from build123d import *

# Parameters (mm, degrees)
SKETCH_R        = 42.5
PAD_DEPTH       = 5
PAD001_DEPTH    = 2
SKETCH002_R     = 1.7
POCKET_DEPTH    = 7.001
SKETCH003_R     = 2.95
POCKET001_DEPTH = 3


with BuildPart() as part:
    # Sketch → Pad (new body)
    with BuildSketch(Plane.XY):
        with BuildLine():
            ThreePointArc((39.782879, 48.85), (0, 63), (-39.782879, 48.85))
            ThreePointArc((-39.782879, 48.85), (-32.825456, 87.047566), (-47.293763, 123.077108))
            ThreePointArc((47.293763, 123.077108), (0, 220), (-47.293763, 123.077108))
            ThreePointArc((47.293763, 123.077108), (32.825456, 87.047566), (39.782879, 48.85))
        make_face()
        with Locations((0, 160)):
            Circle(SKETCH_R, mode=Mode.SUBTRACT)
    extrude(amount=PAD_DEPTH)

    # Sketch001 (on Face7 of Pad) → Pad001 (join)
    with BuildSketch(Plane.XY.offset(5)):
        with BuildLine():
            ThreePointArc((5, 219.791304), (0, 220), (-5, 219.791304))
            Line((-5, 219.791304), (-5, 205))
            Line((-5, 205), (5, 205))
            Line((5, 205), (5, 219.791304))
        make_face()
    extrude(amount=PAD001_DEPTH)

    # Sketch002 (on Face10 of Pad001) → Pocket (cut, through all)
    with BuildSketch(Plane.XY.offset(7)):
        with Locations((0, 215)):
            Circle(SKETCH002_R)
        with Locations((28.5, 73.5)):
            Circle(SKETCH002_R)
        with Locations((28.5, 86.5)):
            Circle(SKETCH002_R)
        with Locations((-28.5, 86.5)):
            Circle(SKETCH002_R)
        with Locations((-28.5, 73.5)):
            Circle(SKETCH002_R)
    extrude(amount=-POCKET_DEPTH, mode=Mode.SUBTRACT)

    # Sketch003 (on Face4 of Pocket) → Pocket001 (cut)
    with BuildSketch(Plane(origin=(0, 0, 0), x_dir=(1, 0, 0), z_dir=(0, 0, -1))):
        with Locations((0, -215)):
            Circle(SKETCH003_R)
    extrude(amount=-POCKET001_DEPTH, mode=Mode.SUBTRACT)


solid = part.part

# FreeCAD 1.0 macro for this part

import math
import FreeCAD as App
import Part
import Sketcher

doc = App.newDocument("Part")
params = doc.addObject("Spreadsheet::Sheet", "Params")
for row, (alias, value) in enumerate([
    ("sketch1_diameter", "85 mm"),
    ("sketch1_radius", "62.999999 mm"),
    ("sketch1_radius2", "70.000001 mm"),
    ("sketch1_radius3", "60 mm"),
    ("pad1_length", "5 mm"),
    ("sketch2_width", "10 mm"),
    ("pad2_length", "2 mm"),
    ("sketch3_diameter", "3.4 mm"),
    ("sketch4_diameter", "5.9 mm"),
    ("pocket2_length", "3 mm"),
], start=1):
    params.set(f"A{row}", alias)
    params.set(f"B{row}", "=" + value)
    params.setAlias(f"B{row}", alias)

body = doc.addObject("PartDesign::Body", "Body")

# Sketch on XY plane
sketch1 = body.newObject("Sketcher::SketchObject", "Sketch")
sketch1.AttachmentSupport = (doc.getObject("XY_Plane"), [""])
sketch1.MapMode = "FlatFace"
sketch1.addGeometry(Part.ArcOfCircle(Part.Circle(App.Vector(0, 0, 0), App.Vector(0, 0, 1), 63), math.radians(51), math.radians(129)), False)
sketch1.addGeometry(Part.ArcOfCircle(Part.Circle(App.Vector(102, 80, 0), App.Vector(0, 0, 1), 70), math.radians(142), math.radians(206)), False)
sketch1.addGeometry(Part.ArcOfCircle(Part.Circle(App.Vector(0, 160, 0), App.Vector(0, 0, 1), 60), math.radians(-38), math.radians(218)), False)
sketch1.addGeometry(Part.ArcOfCircle(Part.Circle(App.Vector(-102, 80, 0), App.Vector(0, 0, 1), 70), math.radians(-26), math.radians(38)), False)
sketch1.addGeometry(Part.Circle(App.Vector(0, 160, 0), App.Vector(0, 0, 1), 42), False)
sketch1.addConstraint(Sketcher.Constraint("Coincident", 0, 1, 1, 2))
sketch1.addConstraint(Sketcher.Constraint("Tangent", 1, 1, 2, 1))
sketch1.addConstraint(Sketcher.Constraint("Tangent", 2, 2, 3, 2))
sketch1.addConstraint(Sketcher.Constraint("Coincident", 3, 1, 0, 2))
sketch1.addConstraint(Sketcher.Constraint("Coincident", 0, 3, -1, 1))
sketch1.addConstraint(Sketcher.Constraint("Coincident", 4, 3, 2, 3))
sketch1.addConstraint(Sketcher.Constraint("Equal", 1, 3))
sketch1.addConstraint(Sketcher.Constraint("Symmetric", 1, 3, 3, 3, -2))
sketch1.addConstraint(Sketcher.Constraint("Diameter", 4, 85.0))
sketch1.addConstraint(Sketcher.Constraint("Radius", 0, 62.999999))
sketch1.addConstraint(Sketcher.Constraint("Radius", 1, 70.000001))
sketch1.addConstraint(Sketcher.Constraint("Radius", 2, 60.0))
sketch1.addConstraint(Sketcher.Constraint("DistanceY", -1, 1, 2, 3, 160.0))
sketch1.addConstraint(Sketcher.Constraint("DistanceY", -1, 1, 0, 1, 48.85))
sketch1.setExpression("Constraints[8]", "Params.sketch1_diameter")
sketch1.setExpression("Constraints[9]", "Params.sketch1_radius")
sketch1.setExpression("Constraints[10]", "Params.sketch1_radius2")
sketch1.setExpression("Constraints[11]", "Params.sketch1_radius3")
pad1 = body.newObject("PartDesign::Pad", "Pad")
pad1.Profile = sketch1
pad1.setExpression("Length", "Params.pad1_length")

# Sketch on XY plane
sketch2 = body.newObject("Sketcher::SketchObject", "Sketch001")
sketch2.AttachmentSupport = (doc.getObject("XY_Plane"), [""])
sketch2.MapMode = "FlatFace"
sketch2.AttachmentOffset = App.Placement(App.Vector(0, 0, 5), App.Rotation())
sketch2.addGeometry(Part.ArcOfCircle(Part.Circle(App.Vector(0, 160, 0), App.Vector(0, 0, 1), 60), math.radians(85.22), math.radians(94.78)), False)
sketch2.addGeometry(Part.LineSegment(App.Vector(-5, 220, 0), App.Vector(-5, 205, 0)), False)
sketch2.addGeometry(Part.LineSegment(App.Vector(-5, 205, 0), App.Vector(5, 205, 0)), False)
sketch2.addGeometry(Part.LineSegment(App.Vector(5, 205, 0), App.Vector(5, 220, 0)), False)
sketch2.addConstraint(Sketcher.Constraint("Coincident", 0, 2, 1, 1))
sketch2.addConstraint(Sketcher.Constraint("Coincident", 1, 2, 2, 1))
sketch2.addConstraint(Sketcher.Constraint("Coincident", 2, 2, 3, 1))
sketch2.addConstraint(Sketcher.Constraint("Coincident", 3, 2, 0, 1))
sketch2.addConstraint(Sketcher.Constraint("Vertical", 1))
sketch2.addConstraint(Sketcher.Constraint("Horizontal", 2))
sketch2.addConstraint(Sketcher.Constraint("Vertical", 3))
sketch2.addConstraint(Sketcher.Constraint("Symmetric", 0, 2, 3, 2, -2))
sketch2.addConstraint(Sketcher.Constraint("DistanceX", 2, 1, 2, 2, 10.0))
sketch2.addConstraint(Sketcher.Constraint("DistanceY", -1, 1, 1, 2, 205.0))
sketch2.addConstraint(Sketcher.Constraint("Radius", 0, 60.000082))
sketch2.addConstraint(Sketcher.Constraint("DistanceY", 1, 2, 1, 1, 14.791304))
sketch2.setExpression("Constraints[8]", "Params.sketch2_width")
pad2 = body.newObject("PartDesign::Pad", "Pad001")
pad2.Profile = sketch2
pad2.setExpression("Length", "Params.pad2_length")

# Sketch on XY plane
sketch3 = body.newObject("Sketcher::SketchObject", "Sketch002")
sketch3.AttachmentSupport = (doc.getObject("XY_Plane"), [""])
sketch3.MapMode = "FlatFace"
sketch3.AttachmentOffset = App.Placement(App.Vector(0, 0, 7), App.Rotation())
sketch3.addGeometry(Part.Circle(App.Vector(0, 215, 0), App.Vector(0, 0, 1), 1.7), False)
sketch3.addGeometry(Part.Circle(App.Vector(28.5, 73.5, 0), App.Vector(0, 0, 1), 1.7), False)
sketch3.addGeometry(Part.Circle(App.Vector(28.5, 86.5, 0), App.Vector(0, 0, 1), 1.7), False)
sketch3.addGeometry(Part.Circle(App.Vector(-28.5, 86.5, 0), App.Vector(0, 0, 1), 1.7), False)
sketch3.addGeometry(Part.Circle(App.Vector(-28.5, 73.5, 0), App.Vector(0, 0, 1), 1.7), False)
sketch3.addConstraint(Sketcher.Constraint("Equal", 0, 1))
sketch3.addConstraint(Sketcher.Constraint("Equal", 1, 2))
sketch3.addConstraint(Sketcher.Constraint("Equal", 2, 3))
sketch3.addConstraint(Sketcher.Constraint("Equal", 3, 4))
sketch3.addConstraint(Sketcher.Constraint("Symmetric", 2, 3, 3, 3, -2))
sketch3.addConstraint(Sketcher.Constraint("Symmetric", 1, 3, 4, 3, -2))
sketch3.addConstraint(Sketcher.Constraint("PointOnObject", 0, 3, -2))
sketch3.addConstraint(Sketcher.Constraint("Vertical", 1, 3, 2, 3))
sketch3.addConstraint(Sketcher.Constraint("Diameter", 0, 3.4))
sketch3.addConstraint(Sketcher.Constraint("DistanceY", -1, 1, 0, 3, 215.0))
sketch3.addConstraint(Sketcher.Constraint("DistanceY", 1, 3, 2, 3, 13.0))
sketch3.addConstraint(Sketcher.Constraint("DistanceX", 3, 3, 2, 3, 57.0))
sketch3.addConstraint(Sketcher.Constraint("DistanceY", -1, 1, 1, 3, 73.5))
sketch3.setExpression("Constraints[8]", "Params.sketch3_diameter")
pocket1 = body.newObject("PartDesign::Pocket", "Pocket")
pocket1.Profile = sketch3
pocket1.Type = "ThroughAll"

# Sketch on XY plane
sketch4 = body.newObject("Sketcher::SketchObject", "Sketch003")
sketch4.AttachmentSupport = (doc.getObject("XY_Plane"), [""])
sketch4.MapMode = "FlatFace"
sketch4.addGeometry(Part.Circle(App.Vector(0, 215, 0), App.Vector(0, 0, 1), 3), False)
sketch4.addConstraint(Sketcher.Constraint("PointOnObject", 0, 3, -2))
sketch4.addConstraint(Sketcher.Constraint("Diameter", 0, 5.9))
sketch4.addConstraint(Sketcher.Constraint("DistanceY", -1, 1, 0, 3, 215.0))
sketch4.setExpression("Constraints[1]", "Params.sketch4_diameter")
pocket2 = body.newObject("PartDesign::Pocket", "Pocket001")
pocket2.Profile = sketch4
pocket2.setExpression("Length", "Params.pocket2_length")
pocket2.Reversed = True

doc.recompute()
